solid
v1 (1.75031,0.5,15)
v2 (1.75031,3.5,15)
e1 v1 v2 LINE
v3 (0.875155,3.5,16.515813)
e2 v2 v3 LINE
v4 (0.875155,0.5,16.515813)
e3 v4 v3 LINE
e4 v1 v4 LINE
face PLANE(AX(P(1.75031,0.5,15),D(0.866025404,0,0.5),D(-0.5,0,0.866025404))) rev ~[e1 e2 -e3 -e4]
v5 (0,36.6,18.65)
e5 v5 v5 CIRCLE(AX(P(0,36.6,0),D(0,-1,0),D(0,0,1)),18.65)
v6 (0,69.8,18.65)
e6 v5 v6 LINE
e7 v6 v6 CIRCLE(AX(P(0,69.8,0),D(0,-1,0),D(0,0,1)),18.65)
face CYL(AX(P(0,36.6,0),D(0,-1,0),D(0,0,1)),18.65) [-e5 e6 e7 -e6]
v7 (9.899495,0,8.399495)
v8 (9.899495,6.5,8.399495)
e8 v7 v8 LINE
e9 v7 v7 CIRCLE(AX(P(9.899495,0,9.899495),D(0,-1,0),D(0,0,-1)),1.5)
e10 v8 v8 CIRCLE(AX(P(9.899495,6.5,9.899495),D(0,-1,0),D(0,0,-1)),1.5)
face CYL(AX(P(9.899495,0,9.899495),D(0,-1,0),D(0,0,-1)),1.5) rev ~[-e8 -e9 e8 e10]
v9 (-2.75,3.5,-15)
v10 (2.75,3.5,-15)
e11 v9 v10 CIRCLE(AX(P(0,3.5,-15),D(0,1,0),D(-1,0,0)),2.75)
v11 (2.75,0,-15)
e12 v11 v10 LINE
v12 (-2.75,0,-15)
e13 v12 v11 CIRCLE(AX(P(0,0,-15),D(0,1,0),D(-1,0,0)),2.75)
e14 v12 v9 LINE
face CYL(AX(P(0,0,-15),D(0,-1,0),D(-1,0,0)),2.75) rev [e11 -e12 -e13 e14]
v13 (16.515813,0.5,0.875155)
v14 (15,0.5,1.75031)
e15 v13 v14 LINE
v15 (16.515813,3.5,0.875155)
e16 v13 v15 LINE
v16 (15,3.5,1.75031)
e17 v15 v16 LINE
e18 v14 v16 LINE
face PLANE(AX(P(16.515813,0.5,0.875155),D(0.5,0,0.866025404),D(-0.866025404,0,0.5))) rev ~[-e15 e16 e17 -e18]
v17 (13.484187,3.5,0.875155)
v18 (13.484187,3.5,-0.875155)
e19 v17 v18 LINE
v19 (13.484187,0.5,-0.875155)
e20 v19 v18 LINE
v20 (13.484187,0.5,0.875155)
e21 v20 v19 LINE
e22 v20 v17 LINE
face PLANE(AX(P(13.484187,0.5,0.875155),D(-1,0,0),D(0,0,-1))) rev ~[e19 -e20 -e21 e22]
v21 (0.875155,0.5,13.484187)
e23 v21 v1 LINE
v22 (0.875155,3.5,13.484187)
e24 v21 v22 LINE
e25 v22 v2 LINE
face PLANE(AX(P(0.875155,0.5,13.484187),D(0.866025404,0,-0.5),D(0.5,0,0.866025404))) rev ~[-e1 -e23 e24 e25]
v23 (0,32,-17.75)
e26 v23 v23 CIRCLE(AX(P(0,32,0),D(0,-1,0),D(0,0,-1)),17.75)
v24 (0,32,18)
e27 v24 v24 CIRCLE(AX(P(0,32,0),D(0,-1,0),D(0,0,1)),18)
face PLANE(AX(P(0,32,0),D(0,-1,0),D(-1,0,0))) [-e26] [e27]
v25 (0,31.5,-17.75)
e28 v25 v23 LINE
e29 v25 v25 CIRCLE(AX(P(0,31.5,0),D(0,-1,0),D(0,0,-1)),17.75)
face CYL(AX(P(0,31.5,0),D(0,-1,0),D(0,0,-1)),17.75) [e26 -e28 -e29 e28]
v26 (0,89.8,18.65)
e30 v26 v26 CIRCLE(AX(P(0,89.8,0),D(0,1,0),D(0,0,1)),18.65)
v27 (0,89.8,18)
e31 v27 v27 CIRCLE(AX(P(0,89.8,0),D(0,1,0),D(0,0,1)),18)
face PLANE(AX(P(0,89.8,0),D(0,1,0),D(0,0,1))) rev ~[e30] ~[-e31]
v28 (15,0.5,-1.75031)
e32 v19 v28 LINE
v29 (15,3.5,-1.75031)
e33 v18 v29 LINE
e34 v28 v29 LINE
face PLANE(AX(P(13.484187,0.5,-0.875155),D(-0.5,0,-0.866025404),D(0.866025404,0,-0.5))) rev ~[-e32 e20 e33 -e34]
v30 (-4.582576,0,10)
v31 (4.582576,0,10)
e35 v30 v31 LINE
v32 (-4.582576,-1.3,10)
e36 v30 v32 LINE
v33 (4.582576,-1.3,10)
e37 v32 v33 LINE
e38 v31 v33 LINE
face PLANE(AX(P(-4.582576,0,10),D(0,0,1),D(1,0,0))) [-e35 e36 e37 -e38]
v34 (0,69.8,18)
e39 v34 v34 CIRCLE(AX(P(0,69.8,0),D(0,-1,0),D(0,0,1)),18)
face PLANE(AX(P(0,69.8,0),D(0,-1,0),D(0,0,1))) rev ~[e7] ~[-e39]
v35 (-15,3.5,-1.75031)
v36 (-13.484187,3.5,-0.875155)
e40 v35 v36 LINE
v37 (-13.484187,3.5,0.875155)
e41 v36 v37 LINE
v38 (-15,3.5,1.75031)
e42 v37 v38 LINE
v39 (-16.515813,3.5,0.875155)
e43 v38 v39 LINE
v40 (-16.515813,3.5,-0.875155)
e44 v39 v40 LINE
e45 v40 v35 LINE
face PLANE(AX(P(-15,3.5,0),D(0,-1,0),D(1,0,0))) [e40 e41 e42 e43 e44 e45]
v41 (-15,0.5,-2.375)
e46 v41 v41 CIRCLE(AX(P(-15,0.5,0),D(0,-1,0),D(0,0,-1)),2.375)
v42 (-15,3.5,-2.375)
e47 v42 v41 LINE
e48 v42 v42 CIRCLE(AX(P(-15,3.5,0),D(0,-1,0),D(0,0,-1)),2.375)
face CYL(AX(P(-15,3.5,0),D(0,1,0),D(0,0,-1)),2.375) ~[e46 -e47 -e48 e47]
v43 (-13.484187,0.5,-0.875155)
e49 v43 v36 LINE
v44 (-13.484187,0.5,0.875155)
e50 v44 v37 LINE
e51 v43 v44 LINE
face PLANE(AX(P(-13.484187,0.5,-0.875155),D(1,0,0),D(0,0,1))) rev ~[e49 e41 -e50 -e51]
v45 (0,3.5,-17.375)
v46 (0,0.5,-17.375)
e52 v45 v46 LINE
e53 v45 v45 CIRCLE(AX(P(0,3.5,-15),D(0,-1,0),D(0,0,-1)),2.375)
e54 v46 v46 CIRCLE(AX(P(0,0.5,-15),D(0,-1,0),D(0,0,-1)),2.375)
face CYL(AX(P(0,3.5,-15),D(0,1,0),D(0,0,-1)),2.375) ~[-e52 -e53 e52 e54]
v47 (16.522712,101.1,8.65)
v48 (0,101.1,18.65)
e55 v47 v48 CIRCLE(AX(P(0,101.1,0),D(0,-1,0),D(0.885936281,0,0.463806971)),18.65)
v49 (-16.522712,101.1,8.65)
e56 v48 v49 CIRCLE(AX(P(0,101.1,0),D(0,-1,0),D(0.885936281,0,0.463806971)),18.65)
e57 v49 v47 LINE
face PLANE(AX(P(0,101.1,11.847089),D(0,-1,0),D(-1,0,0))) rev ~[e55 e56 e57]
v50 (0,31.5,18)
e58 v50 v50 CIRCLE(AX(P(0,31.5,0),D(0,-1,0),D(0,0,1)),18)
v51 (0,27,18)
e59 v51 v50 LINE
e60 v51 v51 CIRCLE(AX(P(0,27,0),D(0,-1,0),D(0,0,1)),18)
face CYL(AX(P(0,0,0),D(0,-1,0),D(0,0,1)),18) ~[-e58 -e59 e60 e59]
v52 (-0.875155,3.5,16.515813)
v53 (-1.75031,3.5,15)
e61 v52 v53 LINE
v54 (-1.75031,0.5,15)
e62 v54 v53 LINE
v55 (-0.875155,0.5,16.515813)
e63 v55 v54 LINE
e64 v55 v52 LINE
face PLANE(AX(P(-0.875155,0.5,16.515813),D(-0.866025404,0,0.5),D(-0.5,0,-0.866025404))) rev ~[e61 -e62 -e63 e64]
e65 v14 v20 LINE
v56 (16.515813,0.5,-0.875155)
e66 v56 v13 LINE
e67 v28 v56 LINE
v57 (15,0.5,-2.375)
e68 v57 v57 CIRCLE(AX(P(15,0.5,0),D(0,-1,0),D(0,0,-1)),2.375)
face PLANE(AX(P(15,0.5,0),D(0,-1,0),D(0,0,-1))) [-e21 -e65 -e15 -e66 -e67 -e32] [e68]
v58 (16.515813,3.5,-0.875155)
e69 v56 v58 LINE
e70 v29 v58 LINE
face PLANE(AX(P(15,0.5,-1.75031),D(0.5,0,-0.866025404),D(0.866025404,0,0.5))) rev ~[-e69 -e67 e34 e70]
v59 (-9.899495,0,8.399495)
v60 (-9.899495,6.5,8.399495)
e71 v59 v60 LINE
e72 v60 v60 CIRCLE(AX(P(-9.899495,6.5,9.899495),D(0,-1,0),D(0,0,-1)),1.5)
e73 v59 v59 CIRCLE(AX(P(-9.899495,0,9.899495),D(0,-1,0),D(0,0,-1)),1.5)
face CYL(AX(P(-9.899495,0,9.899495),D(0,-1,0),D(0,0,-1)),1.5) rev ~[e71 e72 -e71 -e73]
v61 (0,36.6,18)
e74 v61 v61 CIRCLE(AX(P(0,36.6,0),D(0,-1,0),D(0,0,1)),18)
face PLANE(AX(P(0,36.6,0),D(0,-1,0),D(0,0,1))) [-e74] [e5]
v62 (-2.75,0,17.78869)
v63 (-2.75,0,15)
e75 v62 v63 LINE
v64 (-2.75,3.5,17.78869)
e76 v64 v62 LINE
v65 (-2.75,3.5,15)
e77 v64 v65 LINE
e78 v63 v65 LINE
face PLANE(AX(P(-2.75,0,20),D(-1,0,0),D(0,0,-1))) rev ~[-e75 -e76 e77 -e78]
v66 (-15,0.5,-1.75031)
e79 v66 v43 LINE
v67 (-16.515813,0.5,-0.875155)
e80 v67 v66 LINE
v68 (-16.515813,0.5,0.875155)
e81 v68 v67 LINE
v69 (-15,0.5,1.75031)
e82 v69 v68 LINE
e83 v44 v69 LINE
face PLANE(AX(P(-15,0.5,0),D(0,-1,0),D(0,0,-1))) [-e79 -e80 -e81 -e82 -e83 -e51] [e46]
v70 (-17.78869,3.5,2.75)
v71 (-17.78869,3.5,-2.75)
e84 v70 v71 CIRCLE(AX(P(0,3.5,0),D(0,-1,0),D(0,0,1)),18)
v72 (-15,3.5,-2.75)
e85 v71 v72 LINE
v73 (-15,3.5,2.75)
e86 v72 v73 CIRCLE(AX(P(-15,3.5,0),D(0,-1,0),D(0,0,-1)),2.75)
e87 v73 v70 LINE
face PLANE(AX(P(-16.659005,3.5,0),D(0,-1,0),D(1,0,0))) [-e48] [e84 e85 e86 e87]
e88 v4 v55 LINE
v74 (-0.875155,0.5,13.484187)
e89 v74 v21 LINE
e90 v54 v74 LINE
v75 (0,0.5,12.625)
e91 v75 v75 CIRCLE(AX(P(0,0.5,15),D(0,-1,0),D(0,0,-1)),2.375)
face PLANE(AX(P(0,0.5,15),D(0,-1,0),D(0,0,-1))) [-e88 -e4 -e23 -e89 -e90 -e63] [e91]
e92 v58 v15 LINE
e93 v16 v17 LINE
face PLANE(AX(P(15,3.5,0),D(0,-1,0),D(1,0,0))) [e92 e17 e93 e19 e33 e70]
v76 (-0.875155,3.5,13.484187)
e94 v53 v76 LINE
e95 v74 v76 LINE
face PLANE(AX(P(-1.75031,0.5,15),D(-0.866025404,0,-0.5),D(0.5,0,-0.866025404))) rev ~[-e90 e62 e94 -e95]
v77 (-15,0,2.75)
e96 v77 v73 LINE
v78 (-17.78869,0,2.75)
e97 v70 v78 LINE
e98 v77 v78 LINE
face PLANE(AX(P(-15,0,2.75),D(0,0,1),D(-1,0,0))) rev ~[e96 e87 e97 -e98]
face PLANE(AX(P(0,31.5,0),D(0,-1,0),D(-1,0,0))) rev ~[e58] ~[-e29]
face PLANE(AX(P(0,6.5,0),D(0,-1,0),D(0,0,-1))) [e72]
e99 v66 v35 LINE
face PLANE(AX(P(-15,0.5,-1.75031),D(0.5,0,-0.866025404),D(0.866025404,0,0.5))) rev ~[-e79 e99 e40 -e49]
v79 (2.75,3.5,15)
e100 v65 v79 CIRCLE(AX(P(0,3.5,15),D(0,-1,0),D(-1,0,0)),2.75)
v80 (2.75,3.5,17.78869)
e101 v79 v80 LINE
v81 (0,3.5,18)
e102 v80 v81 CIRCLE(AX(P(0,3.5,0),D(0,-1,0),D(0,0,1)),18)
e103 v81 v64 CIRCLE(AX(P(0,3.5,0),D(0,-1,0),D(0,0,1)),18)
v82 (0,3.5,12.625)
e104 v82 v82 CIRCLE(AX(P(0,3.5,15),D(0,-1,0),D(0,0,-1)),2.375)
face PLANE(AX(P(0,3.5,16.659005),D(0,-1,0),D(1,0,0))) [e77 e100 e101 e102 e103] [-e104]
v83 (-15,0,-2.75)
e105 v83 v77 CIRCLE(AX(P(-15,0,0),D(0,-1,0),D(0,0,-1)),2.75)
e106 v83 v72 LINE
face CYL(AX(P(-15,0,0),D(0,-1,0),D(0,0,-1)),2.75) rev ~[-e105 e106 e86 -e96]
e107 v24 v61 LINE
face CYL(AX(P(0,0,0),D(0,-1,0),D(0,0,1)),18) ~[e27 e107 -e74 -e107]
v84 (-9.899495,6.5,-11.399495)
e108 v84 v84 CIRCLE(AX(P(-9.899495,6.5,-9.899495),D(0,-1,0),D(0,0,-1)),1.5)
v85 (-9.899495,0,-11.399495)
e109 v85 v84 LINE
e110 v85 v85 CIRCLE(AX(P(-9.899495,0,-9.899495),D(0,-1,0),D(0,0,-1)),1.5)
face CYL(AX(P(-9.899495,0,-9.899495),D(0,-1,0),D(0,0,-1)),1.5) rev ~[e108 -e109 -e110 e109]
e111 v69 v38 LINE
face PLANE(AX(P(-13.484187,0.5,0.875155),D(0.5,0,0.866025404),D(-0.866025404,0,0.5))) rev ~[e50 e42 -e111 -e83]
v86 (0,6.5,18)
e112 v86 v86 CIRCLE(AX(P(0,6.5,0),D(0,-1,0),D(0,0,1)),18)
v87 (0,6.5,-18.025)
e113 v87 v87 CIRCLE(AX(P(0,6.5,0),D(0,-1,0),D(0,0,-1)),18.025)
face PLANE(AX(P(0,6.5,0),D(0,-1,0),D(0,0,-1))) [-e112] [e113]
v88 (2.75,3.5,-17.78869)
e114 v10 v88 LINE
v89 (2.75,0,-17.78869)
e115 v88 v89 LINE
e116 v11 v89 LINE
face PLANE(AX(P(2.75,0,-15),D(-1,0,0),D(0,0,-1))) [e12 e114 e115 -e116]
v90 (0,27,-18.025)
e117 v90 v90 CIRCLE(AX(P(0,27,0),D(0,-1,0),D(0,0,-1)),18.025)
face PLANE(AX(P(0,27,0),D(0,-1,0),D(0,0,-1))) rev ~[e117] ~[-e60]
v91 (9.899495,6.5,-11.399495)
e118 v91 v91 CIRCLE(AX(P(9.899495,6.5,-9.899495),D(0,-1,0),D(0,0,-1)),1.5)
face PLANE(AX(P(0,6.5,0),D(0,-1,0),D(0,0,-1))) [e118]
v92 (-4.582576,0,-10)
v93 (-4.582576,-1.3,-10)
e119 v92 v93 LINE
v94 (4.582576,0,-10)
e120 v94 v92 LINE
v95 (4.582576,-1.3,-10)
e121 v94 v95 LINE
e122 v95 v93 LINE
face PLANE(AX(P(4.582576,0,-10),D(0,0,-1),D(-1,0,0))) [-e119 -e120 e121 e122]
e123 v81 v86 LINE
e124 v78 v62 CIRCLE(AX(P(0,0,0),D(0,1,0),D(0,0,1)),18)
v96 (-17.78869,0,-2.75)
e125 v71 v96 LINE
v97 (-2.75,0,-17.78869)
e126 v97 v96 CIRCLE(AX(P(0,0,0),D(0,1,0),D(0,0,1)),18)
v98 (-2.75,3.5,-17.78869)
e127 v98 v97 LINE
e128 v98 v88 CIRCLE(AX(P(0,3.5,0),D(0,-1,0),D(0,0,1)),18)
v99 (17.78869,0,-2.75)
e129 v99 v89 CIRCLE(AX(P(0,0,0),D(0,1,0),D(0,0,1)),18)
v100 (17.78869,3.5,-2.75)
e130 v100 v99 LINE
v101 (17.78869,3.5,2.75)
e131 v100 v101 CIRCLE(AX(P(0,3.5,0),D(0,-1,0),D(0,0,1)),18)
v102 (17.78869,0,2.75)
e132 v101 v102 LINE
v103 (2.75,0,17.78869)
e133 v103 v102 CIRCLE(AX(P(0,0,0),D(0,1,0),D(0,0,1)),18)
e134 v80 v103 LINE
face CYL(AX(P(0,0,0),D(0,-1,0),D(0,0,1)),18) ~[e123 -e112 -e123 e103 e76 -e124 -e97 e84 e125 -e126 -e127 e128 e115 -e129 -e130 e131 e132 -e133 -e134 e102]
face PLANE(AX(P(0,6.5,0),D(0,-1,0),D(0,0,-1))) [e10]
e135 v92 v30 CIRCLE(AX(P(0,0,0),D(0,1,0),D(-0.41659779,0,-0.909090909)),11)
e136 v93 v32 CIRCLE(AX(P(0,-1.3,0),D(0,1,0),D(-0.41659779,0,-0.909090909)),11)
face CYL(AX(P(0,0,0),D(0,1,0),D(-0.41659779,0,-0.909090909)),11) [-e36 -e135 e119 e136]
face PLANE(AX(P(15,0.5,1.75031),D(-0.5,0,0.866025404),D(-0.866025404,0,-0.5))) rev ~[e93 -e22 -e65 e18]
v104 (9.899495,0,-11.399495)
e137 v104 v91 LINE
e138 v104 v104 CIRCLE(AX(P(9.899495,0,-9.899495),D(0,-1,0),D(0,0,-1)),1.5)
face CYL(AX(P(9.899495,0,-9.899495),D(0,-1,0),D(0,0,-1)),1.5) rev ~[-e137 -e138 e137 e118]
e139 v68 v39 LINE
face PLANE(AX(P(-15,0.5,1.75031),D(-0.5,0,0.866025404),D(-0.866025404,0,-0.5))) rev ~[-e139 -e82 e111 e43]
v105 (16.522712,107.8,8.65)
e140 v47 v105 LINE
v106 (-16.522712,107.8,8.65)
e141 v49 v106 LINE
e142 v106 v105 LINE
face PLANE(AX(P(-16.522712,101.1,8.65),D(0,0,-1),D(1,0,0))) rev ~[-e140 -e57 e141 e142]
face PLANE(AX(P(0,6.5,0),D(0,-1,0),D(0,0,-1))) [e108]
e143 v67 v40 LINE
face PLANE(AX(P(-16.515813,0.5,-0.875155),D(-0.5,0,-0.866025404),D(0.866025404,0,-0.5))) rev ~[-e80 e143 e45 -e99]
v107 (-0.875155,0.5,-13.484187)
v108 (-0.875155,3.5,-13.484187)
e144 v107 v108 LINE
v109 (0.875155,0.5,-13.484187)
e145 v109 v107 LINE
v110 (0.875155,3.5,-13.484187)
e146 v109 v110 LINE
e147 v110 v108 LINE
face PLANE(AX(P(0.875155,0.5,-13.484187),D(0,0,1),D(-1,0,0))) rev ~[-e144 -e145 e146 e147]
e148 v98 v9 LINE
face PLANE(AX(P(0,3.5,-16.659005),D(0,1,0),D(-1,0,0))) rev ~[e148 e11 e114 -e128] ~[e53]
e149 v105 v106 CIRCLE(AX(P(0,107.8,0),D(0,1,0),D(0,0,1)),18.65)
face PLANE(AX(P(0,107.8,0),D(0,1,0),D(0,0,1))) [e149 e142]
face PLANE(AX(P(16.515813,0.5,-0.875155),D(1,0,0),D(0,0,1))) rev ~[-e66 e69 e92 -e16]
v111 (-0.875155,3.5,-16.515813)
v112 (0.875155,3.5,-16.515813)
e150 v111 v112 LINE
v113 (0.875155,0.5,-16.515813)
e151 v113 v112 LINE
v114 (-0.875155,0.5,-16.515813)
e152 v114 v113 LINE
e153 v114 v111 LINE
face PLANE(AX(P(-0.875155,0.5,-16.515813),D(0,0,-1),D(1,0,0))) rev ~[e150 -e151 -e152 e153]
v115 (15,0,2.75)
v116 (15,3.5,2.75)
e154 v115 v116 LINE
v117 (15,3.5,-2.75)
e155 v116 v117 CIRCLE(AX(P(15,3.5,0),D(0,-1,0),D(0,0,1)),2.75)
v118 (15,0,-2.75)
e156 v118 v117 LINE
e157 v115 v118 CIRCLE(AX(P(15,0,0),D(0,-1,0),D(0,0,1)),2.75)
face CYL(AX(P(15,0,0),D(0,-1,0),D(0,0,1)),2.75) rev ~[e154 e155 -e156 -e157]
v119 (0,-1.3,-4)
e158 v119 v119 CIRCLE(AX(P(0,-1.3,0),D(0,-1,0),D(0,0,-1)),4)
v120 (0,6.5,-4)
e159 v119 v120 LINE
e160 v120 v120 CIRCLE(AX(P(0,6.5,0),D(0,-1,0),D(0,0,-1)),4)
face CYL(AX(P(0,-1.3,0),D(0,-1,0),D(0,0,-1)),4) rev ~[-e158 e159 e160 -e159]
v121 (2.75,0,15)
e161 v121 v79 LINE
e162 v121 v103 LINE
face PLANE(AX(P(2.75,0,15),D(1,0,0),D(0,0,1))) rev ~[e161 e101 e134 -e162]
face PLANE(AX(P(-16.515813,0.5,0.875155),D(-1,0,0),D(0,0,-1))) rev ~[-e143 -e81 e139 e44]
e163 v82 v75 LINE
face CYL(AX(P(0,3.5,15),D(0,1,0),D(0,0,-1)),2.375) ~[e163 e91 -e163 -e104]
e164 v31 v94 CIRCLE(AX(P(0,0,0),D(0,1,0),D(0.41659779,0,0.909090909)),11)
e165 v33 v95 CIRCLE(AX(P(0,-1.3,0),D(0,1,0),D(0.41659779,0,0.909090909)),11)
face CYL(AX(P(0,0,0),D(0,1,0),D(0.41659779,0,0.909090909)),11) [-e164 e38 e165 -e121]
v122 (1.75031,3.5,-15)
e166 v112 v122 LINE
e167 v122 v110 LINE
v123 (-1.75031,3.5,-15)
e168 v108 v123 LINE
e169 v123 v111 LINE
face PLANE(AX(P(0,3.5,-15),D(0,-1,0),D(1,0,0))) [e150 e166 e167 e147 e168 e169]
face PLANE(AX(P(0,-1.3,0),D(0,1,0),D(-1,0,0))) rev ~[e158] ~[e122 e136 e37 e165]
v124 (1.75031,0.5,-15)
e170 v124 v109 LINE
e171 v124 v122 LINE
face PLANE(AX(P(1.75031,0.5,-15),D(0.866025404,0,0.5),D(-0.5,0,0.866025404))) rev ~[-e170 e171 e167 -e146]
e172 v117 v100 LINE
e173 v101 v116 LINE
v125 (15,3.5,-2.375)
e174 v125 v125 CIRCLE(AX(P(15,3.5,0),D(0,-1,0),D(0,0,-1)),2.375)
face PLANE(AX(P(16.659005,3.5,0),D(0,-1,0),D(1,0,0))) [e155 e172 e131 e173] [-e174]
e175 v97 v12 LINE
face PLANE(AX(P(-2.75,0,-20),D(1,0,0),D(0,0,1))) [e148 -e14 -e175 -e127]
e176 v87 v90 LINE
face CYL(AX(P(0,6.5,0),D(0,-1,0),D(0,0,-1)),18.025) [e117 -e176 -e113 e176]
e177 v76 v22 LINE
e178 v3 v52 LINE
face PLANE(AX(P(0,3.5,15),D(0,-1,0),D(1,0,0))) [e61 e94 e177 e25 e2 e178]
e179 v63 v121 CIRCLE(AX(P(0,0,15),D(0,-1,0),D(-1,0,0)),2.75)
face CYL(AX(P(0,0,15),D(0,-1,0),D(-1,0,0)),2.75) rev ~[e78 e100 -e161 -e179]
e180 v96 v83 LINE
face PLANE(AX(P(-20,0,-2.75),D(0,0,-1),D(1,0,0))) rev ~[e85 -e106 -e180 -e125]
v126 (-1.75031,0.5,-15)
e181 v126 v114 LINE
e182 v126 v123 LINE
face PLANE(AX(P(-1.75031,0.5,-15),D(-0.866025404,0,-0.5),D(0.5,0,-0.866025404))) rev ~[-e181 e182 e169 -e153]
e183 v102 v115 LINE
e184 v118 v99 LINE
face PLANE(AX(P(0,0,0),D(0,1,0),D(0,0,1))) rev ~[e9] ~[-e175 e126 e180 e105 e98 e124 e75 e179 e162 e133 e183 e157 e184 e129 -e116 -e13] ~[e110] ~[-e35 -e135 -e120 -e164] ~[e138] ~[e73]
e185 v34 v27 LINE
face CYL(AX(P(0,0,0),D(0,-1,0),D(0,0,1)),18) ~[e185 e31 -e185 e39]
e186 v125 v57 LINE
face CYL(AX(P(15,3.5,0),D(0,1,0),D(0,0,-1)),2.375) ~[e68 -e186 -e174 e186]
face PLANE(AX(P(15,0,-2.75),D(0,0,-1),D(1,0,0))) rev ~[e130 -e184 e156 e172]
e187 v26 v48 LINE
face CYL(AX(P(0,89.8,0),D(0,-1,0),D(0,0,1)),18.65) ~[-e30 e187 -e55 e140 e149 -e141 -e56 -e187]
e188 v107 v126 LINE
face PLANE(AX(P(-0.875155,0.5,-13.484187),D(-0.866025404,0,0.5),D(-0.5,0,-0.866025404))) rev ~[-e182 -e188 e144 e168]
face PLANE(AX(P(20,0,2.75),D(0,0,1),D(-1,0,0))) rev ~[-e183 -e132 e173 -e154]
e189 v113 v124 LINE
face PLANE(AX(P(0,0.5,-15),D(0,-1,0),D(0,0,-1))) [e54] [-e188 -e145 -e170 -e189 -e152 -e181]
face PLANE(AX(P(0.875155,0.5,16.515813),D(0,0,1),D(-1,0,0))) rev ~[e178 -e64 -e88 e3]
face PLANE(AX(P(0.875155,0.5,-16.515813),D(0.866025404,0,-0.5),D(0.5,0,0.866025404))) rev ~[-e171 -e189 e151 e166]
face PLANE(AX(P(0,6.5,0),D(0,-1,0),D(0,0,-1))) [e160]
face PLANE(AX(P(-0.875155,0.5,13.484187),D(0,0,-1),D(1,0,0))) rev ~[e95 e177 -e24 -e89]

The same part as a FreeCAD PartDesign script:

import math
import FreeCAD as App
import Part
import Sketcher

V = App.Vector
Q = App.Units.Quantity

doc = App.newDocument("Part")
params = doc.addObject("Spreadsheet::Sheet", "Params")
for row, (alias, value) in enumerate([
    ("sketch1_diameter", "36 mm"),
    ("pad1_length", "89.8 mm"),
    ("sketch2_diameter", "37.3 mm"),
    ("pad2_length", "18 mm"),
    ("sketch3_radius", "11 mm"),
    ("pad3_length", "1.3 mm"),
    ("sketch4_diameter", "37.3 mm"),
    ("pad4_length", "33.2 mm"),
    ("sketch5_diameter", "8 mm"),
    ("pocket1_length", "10.3 mm"),
    ("sketch6_radius", "18.65 mm"),
    ("pocket2_length", "6.7 mm"),
    ("sketch7_diameter", "3 mm"),
    ("pocket3_length", "10 mm"),
    ("sketch8_diameter", "36.05 mm"),
    ("pad5_length", "20.5 mm"),
    ("sketch9_diameter", "35.5 mm"),
    ("pocket4_length", "0.5 mm"),
    ("sketch10_width", "5 mm"),
    ("sketch10_radius", "2.75 mm"),
    ("pocket5_length", "3.5 mm"),
    ("sketch11_diameter", "4.75 mm"),
    ("pad6_length", "3 mm"),
    ("pocket6_length", "3 mm"),
], start=1):
    params.set(f"A{row}", alias)
    params.set(f"B{row}", "=" + value)
    params.setAlias(f"B{row}", alias)

body = doc.addObject("PartDesign::Body", "Body")

# Sketch on XZ plane
sketch1 = body.newObject("Sketcher::SketchObject", "Sketch")
sketch1.AttachmentSupport = (doc.getObject("XZ_Plane"), [""])
sketch1.MapMode = "FlatFace"
sketch1.addGeometry(Part.Circle(V(0, 0, 0), V(0, 0, 1), 18), False)
sketch1.addConstraint(Sketcher.Constraint("Coincident", 0, 3, -1, 1))
sketch1.addConstraint(Sketcher.Constraint("Diameter", 0, 36.0))
sketch1.setExpression("Constraints[1]", "Params.sketch1_diameter")
pad1 = body.newObject("PartDesign::Pad", "Pad")
pad1.Profile = sketch1
pad1.setExpression("Length", "Params.pad1_length")
pad1.Reversed = True

# Sketch on XZ plane
sketch2 = body.newObject("Sketcher::SketchObject", "Sketch001")
sketch2.AttachmentSupport = (doc.getObject("XZ_Plane"), [""])
sketch2.MapMode = "FlatFace"
sketch2.AttachmentOffset = App.Placement(V(0, 0, -89.8), App.Rotation())
sketch2.addGeometry(Part.Circle(V(0, 0, 0), V(0, 0, 1), 19), False)
sketch2.addConstraint(Sketcher.Constraint("Coincident", 0, 3, -1, 1))
sketch2.addConstraint(Sketcher.Constraint("Diameter", 0, 37.3))
sketch2.setExpression("Constraints[1]", "Params.sketch2_diameter")
pad2 = body.newObject("PartDesign::Pad", "Pad001")
pad2.Profile = sketch2
pad2.setExpression("Length", "Params.pad2_length")
pad2.Reversed = True

# Sketch on XZ plane
sketch3 = body.newObject("Sketcher::SketchObject", "Sketch002")
sketch3.AttachmentSupport = (doc.getObject("XZ_Plane"), [""])
sketch3.MapMode = "FlatFace"
sketch3.addGeometry(Part.LineSegment(V(-5, -10, 0), V(5, -10, 0)), False)
sketch3.addGeometry(Part.ArcOfCircle(Part.Circle(V(0, 0, 0), V(0, 0, 1), 11), math.radians(-65), math.radians(65)), False)
sketch3.addGeometry(Part.LineSegment(V(5, 10, 0), V(-5, 10, 0)), False)
sketch3.addGeometry(Part.ArcOfCircle(Part.Circle(V(0, 0, 0), V(0, 0, 1), 11), math.radians(115), math.radians(245)), False)
sketch3.addConstraint(Sketcher.Constraint("Coincident", 0, 2, 1, 1))
sketch3.addConstraint(Sketcher.Constraint("Coincident", 1, 2, 2, 1))
sketch3.addConstraint(Sketcher.Constraint("Coincident", 2, 2, 3, 1))
sketch3.addConstraint(Sketcher.Constraint("Coincident", 3, 2, 0, 1))
sketch3.addConstraint(Sketcher.Constraint("Horizontal", 0))
sketch3.addConstraint(Sketcher.Constraint("Horizontal", 2))
sketch3.addConstraint(Sketcher.Constraint("Coincident", 1, 3, -1, 1))
sketch3.addConstraint(Sketcher.Constraint("Coincident", 3, 3, -1, 1))
sketch3.addConstraint(Sketcher.Constraint("Equal", 1, 3))
sketch3.addConstraint(Sketcher.Constraint("Vertical", 0, 2, 1, 2))
sketch3.addConstraint(Sketcher.Constraint("Radius", 1, 11.0))
sketch3.addConstraint(Sketcher.Constraint("DistanceY", 0, 2, -1, 1, 10.0))
sketch3.setExpression("Constraints[10]", "Params.sketch3_radius")
pad3 = body.newObject("PartDesign::Pad", "Pad002")
pad3.Profile = sketch3
pad3.setExpression("Length", "Params.pad3_length")

# Sketch on XZ plane
sketch4 = body.newObject("Sketcher::SketchObject", "Sketch003")
sketch4.AttachmentSupport = (doc.getObject("XZ_Plane"), [""])
sketch4.MapMode = "FlatFace"
sketch4.AttachmentOffset = App.Placement(V(0, 0, -36.6), App.Rotation())
sketch4.addGeometry(Part.Circle(V(0, 0, 0), V(0, 0, 1), 19), False)
sketch4.addConstraint(Sketcher.Constraint("Coincident", 0, 3, -1, 1))
sketch4.addConstraint(Sketcher.Constraint("Diameter", 0, 37.3))
sketch4.setExpression("Constraints[1]", "Params.sketch4_diameter")
pad4 = body.newObject("PartDesign::Pad", "Pad003")
pad4.Profile = sketch4
pad4.setExpression("Length", "Params.pad4_length")
pad4.Reversed = True

# Sketch on XZ plane
sketch5 = body.newObject("Sketcher::SketchObject", "Sketch004")
sketch5.AttachmentSupport = (doc.getObject("XZ_Plane"), [""])
sketch5.MapMode = "FlatFace"
sketch5.AttachmentOffset = App.Placement(V(0, 0, 1.3), App.Rotation())
sketch5.addGeometry(Part.Circle(V(0, 0, 0), V(0, 0, 1), 4), False)
sketch5.addConstraint(Sketcher.Constraint("Coincident", 0, 3, -1, 1))
sketch5.addConstraint(Sketcher.Constraint("Diameter", 0, 8.0))
sketch5.setExpression("Constraints[1]", "Params.sketch5_diameter")
pocket1 = body.newObject("PartDesign::Pocket", "Pocket")
pocket1.Profile = sketch5
pocket1.setExpression("Length", "Params.pocket1_length")

# Sketch on XZ plane
sketch6 = body.newObject("Sketcher::SketchObject", "Sketch005")
sketch6.AttachmentSupport = (doc.getObject("XZ_Plane"), [""])
sketch6.MapMode = "FlatFace"
sketch6.AttachmentOffset = App.Placement(V(0, 0, -101.1), App.Rotation())
sketch6.addGeometry(Part.LineSegment(V(17, 9, 0), V(-17, 9, 0)), False)
sketch6.addGeometry(Part.ArcOfCircle(Part.Circle(V(0, 0, 0), V(0, 0, 1), 19), math.radians(28), math.radians(152)), False)
sketch6.addConstraint(Sketcher.Constraint("Coincident", 0, 1, 1, 1))
sketch6.addConstraint(Sketcher.Constraint("Coincident", 1, 2, 0, 2))
sketch6.addConstraint(Sketcher.Constraint("Horizontal", 0))
sketch6.addConstraint(Sketcher.Constraint("Coincident", 1, 3, -1, 1))
sketch6.addConstraint(Sketcher.Constraint("Radius", 1, 18.65))
sketch6.addConstraint(Sketcher.Constraint("DistanceY", -1, 1, 0, 1, 8.65))
sketch6.setExpression("Constraints[4]", "Params.sketch6_radius")
pocket2 = body.newObject("PartDesign::Pocket", "Pocket001")
pocket2.Profile = sketch6
pocket2.setExpression("Length", "Params.pocket2_length")

# Sketch on XZ plane
sketch7 = body.newObject("Sketcher::SketchObject", "Sketch006")
sketch7.AttachmentSupport = (doc.getObject("XZ_Plane"), [""])
sketch7.MapMode = "FlatFace"
sketch7.addGeometry(Part.Circle(V(-9.9, 9.9, 0), V(0, 0, 1), 1.5), False)
sketch7.addGeometry(Part.Circle(V(9.9, 9.9, 0), V(0, 0, 1), 1.5), False)
sketch7.addGeometry(Part.Circle(V(9.9, -9.9, 0), V(0, 0, 1), 1.5), False)
sketch7.addGeometry(Part.Circle(V(-9.9, -9.9, 0), V(0, 0, 1), 1.5), False)
sketch7.addConstraint(Sketcher.Constraint("Equal", 0, 1))
sketch7.addConstraint(Sketcher.Constraint("Equal", 1, 2))
sketch7.addConstraint(Sketcher.Constraint("Equal", 2, 3))
sketch7.addConstraint(Sketcher.Constraint("Symmetric", 0, 3, 2, 3, -1, 1))
sketch7.addConstraint(Sketcher.Constraint("Symmetric", 1, 3, 3, 3, -1, 1))
sketch7.addConstraint(Sketcher.Constraint("Symmetric", 0, 3, 1, 3, -2))
sketch7.addConstraint(Sketcher.Constraint("Diameter", 0, 3.0))
sketch7.addConstraint(Sketcher.Constraint("DistanceX", 0, 3, 1, 3, 19.79899))
sketch7.addConstraint(Sketcher.Constraint("DistanceY", 2, 3, 1, 3, 19.79899))
sketch7.setExpression("Constraints[6]", "Params.sketch7_diameter")
pocket3 = body.newObject("PartDesign::Pocket", "Pocket002")
pocket3.Profile = sketch7
pocket3.setExpression("Length", "Params.pocket3_length")

# Sketch on XZ plane
sketch8 = body.newObject("Sketcher::SketchObject", "Sketch007")
sketch8.AttachmentSupport = (doc.getObject("XZ_Plane"), [""])
sketch8.MapMode = "FlatFace"
sketch8.AttachmentOffset = App.Placement(V(0, 0, -6.5), App.Rotation())
sketch8.addGeometry(Part.Circle(V(0, 0, 0), V(0, 0, 1), 18), False)
sketch8.addConstraint(Sketcher.Constraint("Coincident", 0, 3, -1, 1))
sketch8.addConstraint(Sketcher.Constraint("Diameter", 0, 36.05))
sketch8.setExpression("Constraints[1]", "Params.sketch8_diameter")
pad5 = body.newObject("PartDesign::Pad", "Pad004")
pad5.Profile = sketch8
pad5.setExpression("Length", "Params.pad5_length")
pad5.Reversed = True

# Sketch on XZ plane
sketch9 = body.newObject("Sketcher::SketchObject", "Sketch008")
sketch9.AttachmentSupport = (doc.getObject("XZ_Plane"), [""])
sketch9.MapMode = "FlatFace"
sketch9.AttachmentOffset = App.Placement(V(0, 0, -31.5), App.Rotation())
sketch9.addGeometry(Part.Circle(V(0, 0, 0), V(0, 0, 1), 20), False)
sketch9.addGeometry(Part.Circle(V(0, 0, 0), V(0, 0, 1), 18), False)
sketch9.addConstraint(Sketcher.Constraint("Coincident", 0, 3, -1, 1))
sketch9.addConstraint(Sketcher.Constraint("Coincident", 1, 3, -1, 1))
sketch9.addConstraint(Sketcher.Constraint("Diameter", 1, 35.5))
sketch9.addConstraint(Sketcher.Constraint("Diameter", 0, 39.291357))
sketch9.setExpression("Constraints[2]", "Params.sketch9_diameter")
pocket4 = body.newObject("PartDesign::Pocket", "Pocket003")
pocket4.Profile = sketch9
pocket4.setExpression("Length", "Params.pocket4_length")

# Sketch on XZ plane
sketch10 = body.newObject("Sketcher::SketchObject", "Sketch009")
sketch10.AttachmentSupport = (doc.getObject("XZ_Plane"), [""])
sketch10.MapMode = "FlatFace"
sketch10.addGeometry(Part.LineSegment(V(2.8, -20, 0), V(2.8, -15, 0)), False)
sketch10.addGeometry(Part.ArcOfCircle(Part.Circle(V(0, -15, 0), V(0, 0, 1), 2.8), math.radians(0), math.radians(180)), False)
sketch10.addGeometry(Part.LineSegment(V(-2.8, -15, 0), V(-2.8, -20, 0)), False)
sketch10.addGeometry(Part.LineSegment(V(-2.8, -20, 0), V(2.8, -20, 0)), False)
sketch10.addGeometry(Part.LineSegment(V(2.8, 15, 0), V(2.8, 20, 0)), False)
sketch10.addGeometry(Part.LineSegment(V(2.8, 20, 0), V(-2.8, 20, 0)), False)
sketch10.addGeometry(Part.LineSegment(V(-2.8, 20, 0), V(-2.8, 15, 0)), False)
sketch10.addGeometry(Part.ArcOfCircle(Part.Circle(V(0, 15, 0), V(0, 0, 1), 2.8), math.radians(180), math.radians(360)), False)
sketch10.addGeometry(Part.LineSegment(V(-15, 2.8, 0), V(-20, 2.8, 0)), False)
sketch10.addGeometry(Part.LineSegment(V(-20, 2.8, 0), V(-20, -2.8, 0)), False)
sketch10.addGeometry(Part.LineSegment(V(-20, -2.8, 0), V(-15, -2.8, 0)), False)
sketch10.addGeometry(Part.ArcOfCircle(Part.Circle(V(-15, 0, 0), V(0, 0, 1), 2.8), math.radians(-90), math.radians(90)), False)
sketch10.addGeometry(Part.LineSegment(V(15, -2.8, 0), V(20, -2.8, 0)), False)
sketch10.addGeometry(Part.LineSegment(V(20, -2.8, 0), V(20, 2.8, 0)), False)
sketch10.addGeometry(Part.LineSegment(V(20, 2.8, 0), V(15, 2.8, 0)), False)
sketch10.addGeometry(Part.ArcOfCircle(Part.Circle(V(15, 0, 0), V(0, 0, 1), 2.8), math.radians(90), math.radians(270)), False)
sketch10.addConstraint(Sketcher.Constraint("Tangent", 0, 2, 1, 1))
sketch10.addConstraint(Sketcher.Constraint("Tangent", 1, 2, 2, 1))
sketch10.addConstraint(Sketcher.Constraint("Coincident", 2, 2, 3, 1))
sketch10.addConstraint(Sketcher.Constraint("Coincident", 3, 2, 0, 1))
sketch10.addConstraint(Sketcher.Constraint("Coincident", 4, 2, 5, 1))
sketch10.addConstraint(Sketcher.Constraint("Coincident", 5, 2, 6, 1))
sketch10.addConstraint(Sketcher.Constraint("Tangent", 6, 2, 7, 1))
sketch10.addConstraint(Sketcher.Constraint("Tangent", 7, 2, 4, 1))
sketch10.addConstraint(Sketcher.Constraint("Coincident", 8, 2, 9, 1))
sketch10.addConstraint(Sketcher.Constraint("Coincident", 9, 2, 10, 1))
sketch10.addConstraint(Sketcher.Constraint("Tangent", 10, 2, 11, 1))
sketch10.addConstraint(Sketcher.Constraint("Tangent", 11, 2, 8, 1))
sketch10.addConstraint(Sketcher.Constraint("Coincident", 12, 2, 13, 1))
sketch10.addConstraint(Sketcher.Constraint("Coincident", 13, 2, 14, 1))
sketch10.addConstraint(Sketcher.Constraint("Tangent", 14, 2, 15, 1))
sketch10.addConstraint(Sketcher.Constraint("Tangent", 15, 2, 12, 1))
sketch10.addConstraint(Sketcher.Constraint("Vertical", 0))
sketch10.addConstraint(Sketcher.Constraint("Vertical", 2))
sketch10.addConstraint(Sketcher.Constraint("Horizontal", 3))
sketch10.addConstraint(Sketcher.Constraint("Vertical", 4))
sketch10.addConstraint(Sketcher.Constraint("Horizontal", 5))
sketch10.addConstraint(Sketcher.Constraint("Vertical", 6))
sketch10.addConstraint(Sketcher.Constraint("Horizontal", 8))
sketch10.addConstraint(Sketcher.Constraint("Vertical", 9))
sketch10.addConstraint(Sketcher.Constraint("Horizontal", 10))
sketch10.addConstraint(Sketcher.Constraint("Horizontal", 12))
sketch10.addConstraint(Sketcher.Constraint("Vertical", 13))
sketch10.addConstraint(Sketcher.Constraint("Horizontal", 14))
sketch10.addConstraint(Sketcher.Constraint("Equal", 1, 7))
sketch10.addConstraint(Sketcher.Constraint("Equal", 7, 11))
sketch10.addConstraint(Sketcher.Constraint("Equal", 11, 15))
sketch10.addConstraint(Sketcher.Constraint("Symmetric", 1, 3, 7, 3, -1, 1))
sketch10.addConstraint(Sketcher.Constraint("Symmetric", 11, 3, 15, 3, -1, 1))
sketch10.addConstraint(Sketcher.Constraint("Symmetric", 9, 2, 12, 2, -2))
sketch10.addConstraint(Sketcher.Constraint("Symmetric", 3, 2, 4, 2, -1))
sketch10.addConstraint(Sketcher.Constraint("Equal", 14, 0))
sketch10.addConstraint(Sketcher.Constraint("DistanceX", 8, 2, 8, 1, 5.0))
sketch10.addConstraint(Sketcher.Constraint("Radius", 1, 2.75))
sketch10.addConstraint(Sketcher.Constraint("DistanceY", 1, 3, -1, 1, 15.0))
sketch10.addConstraint(Sketcher.Constraint("DistanceX", 11, 3, -1, 1, 15.0))
sketch10.setExpression("Constraints[36]", "Params.sketch10_width")
sketch10.setExpression("Constraints[37]", "Params.sketch10_radius")
pocket5 = body.newObject("PartDesign::Pocket", "Pocket004")
pocket5.Profile = sketch10
pocket5.setExpression("Length", "Params.pocket5_length")

# Sketch on XZ plane
sketch11 = body.newObject("Sketcher::SketchObject", "Sketch010")
sketch11.AttachmentSupport = (doc.getObject("XZ_Plane"), [""])
sketch11.MapMode = "FlatFace"
sketch11.AttachmentOffset = App.Placement(V(0, 0, -3.5), App.Rotation())
sketch11.addGeometry(Part.Circle(V(-15, 0, 0), V(0, 0, 1), 2.4), False)
sketch11.addGeometry(Part.Circle(V(0, 15, 0), V(0, 0, 1), 2.4), False)
sketch11.addGeometry(Part.Circle(V(15, 0, 0), V(0, 0, 1), 2.4), False)
sketch11.addGeometry(Part.Circle(V(0, -15, 0), V(0, 0, 1), 2.4), False)
sketch11.addConstraint(Sketcher.Constraint("Equal", 0, 1))
sketch11.addConstraint(Sketcher.Constraint("Equal", 1, 2))
sketch11.addConstraint(Sketcher.Constraint("Equal", 2, 3))
sketch11.addConstraint(Sketcher.Constraint("Symmetric", 0, 3, 2, 3, -1, 1))
sketch11.addConstraint(Sketcher.Constraint("Symmetric", 1, 3, 3, 3, -1, 1))
sketch11.addConstraint(Sketcher.Constraint("PointOnObject", 0, 3, -1))
sketch11.addConstraint(Sketcher.Constraint("PointOnObject", 1, 3, -2))
sketch11.addConstraint(Sketcher.Constraint("Diameter", 0, 4.75))
sketch11.addConstraint(Sketcher.Constraint("DistanceX", 0, 3, -1, 1, 15.0))
sketch11.addConstraint(Sketcher.Constraint("DistanceY", -1, 1, 1, 3, 15.0))
sketch11.setExpression("Constraints[7]", "Params.sketch11_diameter")
pad6 = body.newObject("PartDesign::Pad", "Pad005")
pad6.Profile = sketch11
pad6.setExpression("Length", "Params.pad6_length")

# Sketch on XZ plane
sketch12 = body.newObject("Sketcher::SketchObject", "Sketch011")
sketch12.AttachmentSupport = (doc.getObject("XZ_Plane"), [""])
sketch12.MapMode = "FlatFace"
sketch12.AttachmentOffset = App.Placement(V(0, 0, -0.5), App.Rotation())
sketch12.addGeometry(Part.LineSegment(V(16.5, 0.9, 0), V(15, 1.8, 0)), False)
sketch12.addGeometry(Part.LineSegment(V(15, 1.8, 0), V(13.5, 0.9, 0)), False)
sketch12.addGeometry(Part.LineSegment(V(13.5, 0.9, 0), V(13.5, -0.9, 0)), False)
sketch12.addGeometry(Part.LineSegment(V(13.5, -0.9, 0), V(15, -1.8, 0)), False)
sketch12.addGeometry(Part.LineSegment(V(15, -1.8, 0), V(16.5, -0.9, 0)), False)
sketch12.addGeometry(Part.LineSegment(V(16.5, -0.9, 0), V(16.5, 0.9, 0)), False)
sketch12.addGeometry(Part.LineSegment(V(-1.8, 15, 0), V(-0.9, 13.5, 0)), False)
sketch12.addGeometry(Part.LineSegment(V(-0.9, 13.5, 0), V(0.9, 13.5, 0)), False)
sketch12.addGeometry(Part.LineSegment(V(0.9, 13.5, 0), V(1.8, 15, 0)), False)
sketch12.addGeometry(Part.LineSegment(V(1.8, 15, 0), V(0.9, 16.5, 0)), False)
sketch12.addGeometry(Part.LineSegment(V(0.9, 16.5, 0), V(-0.9, 16.5, 0)), False)
sketch12.addGeometry(Part.LineSegment(V(-0.9, 16.5, 0), V(-1.8, 15, 0)), False)
sketch12.addGeometry(Part.LineSegment(V(0.9, -16.5, 0), V(1.8, -15, 0)), False)
sketch12.addGeometry(Part.LineSegment(V(1.8, -15, 0), V(0.9, -13.5, 0)), False)
sketch12.addGeometry(Part.LineSegment(V(0.9, -13.5, 0), V(-0.9, -13.5, 0)), False)
sketch12.addGeometry(Part.LineSegment(V(-0.9, -13.5, 0), V(-1.8, -15, 0)), False)
sketch12.addGeometry(Part.LineSegment(V(-1.8, -15, 0), V(-0.9, -16.5, 0)), False)
sketch12.addGeometry(Part.LineSegment(V(-0.9, -16.5, 0), V(0.9, -16.5, 0)), False)
sketch12.addGeometry(Part.LineSegment(V(-16.5, -0.9, 0), V(-15, -1.8, 0)), False)
sketch12.addGeometry(Part.LineSegment(V(-15, -1.8, 0), V(-13.5, -0.9, 0)), False)
sketch12.addGeometry(Part.LineSegment(V(-13.5, -0.9, 0), V(-13.5, 0.9, 0)), False)
sketch12.addGeometry(Part.LineSegment(V(-13.5, 0.9, 0), V(-15, 1.8, 0)), False)
sketch12.addGeometry(Part.LineSegment(V(-15, 1.8, 0), V(-16.5, 0.9, 0)), False)
sketch12.addGeometry(Part.LineSegment(V(-16.5, 0.9, 0), V(-16.5, -0.9, 0)), False)
sketch12.addConstraint(Sketcher.Constraint("Coincident", 0, 2, 1, 1))
sketch12.addConstraint(Sketcher.Constraint("Coincident", 1, 2, 2, 1))
sketch12.addConstraint(Sketcher.Constraint("Coincident", 2, 2, 3, 1))
sketch12.addConstraint(Sketcher.Constraint("Coincident", 3, 2, 4, 1))
sketch12.addConstraint(Sketcher.Constraint("Coincident", 4, 2, 5, 1))
sketch12.addConstraint(Sketcher.Constraint("Coincident", 5, 2, 0, 1))
sketch12.addConstraint(Sketcher.Constraint("Coincident", 6, 2, 7, 1))
sketch12.addConstraint(Sketcher.Constraint("Coincident", 7, 2, 8, 1))
sketch12.addConstraint(Sketcher.Constraint("Coincident", 8, 2, 9, 1))
sketch12.addConstraint(Sketcher.Constraint("Coincident", 9, 2, 10, 1))
sketch12.addConstraint(Sketcher.Constraint("Coincident", 10, 2, 11, 1))
sketch12.addConstraint(Sketcher.Constraint("Coincident", 11, 2, 6, 1))
sketch12.addConstraint(Sketcher.Constraint("Coincident", 12, 2, 13, 1))
sketch12.addConstraint(Sketcher.Constraint("Coincident", 13, 2, 14, 1))
sketch12.addConstraint(Sketcher.Constraint("Coincident", 14, 2, 15, 1))
sketch12.addConstraint(Sketcher.Constraint("Coincident", 15, 2, 16, 1))
sketch12.addConstraint(Sketcher.Constraint("Coincident", 16, 2, 17, 1))
sketch12.addConstraint(Sketcher.Constraint("Coincident", 17, 2, 12, 1))
sketch12.addConstraint(Sketcher.Constraint("Coincident", 18, 2, 19, 1))
sketch12.addConstraint(Sketcher.Constraint("Coincident", 19, 2, 20, 1))
sketch12.addConstraint(Sketcher.Constraint("Coincident", 20, 2, 21, 1))
sketch12.addConstraint(Sketcher.Constraint("Coincident", 21, 2, 22, 1))
sketch12.addConstraint(Sketcher.Constraint("Coincident", 22, 2, 23, 1))
sketch12.addConstraint(Sketcher.Constraint("Coincident", 23, 2, 18, 1))
sketch12.addConstraint(Sketcher.Constraint("Vertical", 2))
sketch12.addConstraint(Sketcher.Constraint("Vertical", 5))
sketch12.addConstraint(Sketcher.Constraint("Horizontal", 7))
sketch12.addConstraint(Sketcher.Constraint("Horizontal", 10))
sketch12.addConstraint(Sketcher.Constraint("Horizontal", 14))
sketch12.addConstraint(Sketcher.Constraint("Horizontal", 17))
sketch12.addConstraint(Sketcher.Constraint("Vertical", 20))
sketch12.addConstraint(Sketcher.Constraint("Vertical", 23))
sketch12.addConstraint(Sketcher.Constraint("Symmetric", 11, 2, 12, 2, -1, 1))
sketch12.addConstraint(Sketcher.Constraint("Symmetric", 6, 2, 13, 2, -1, 1))
sketch12.addConstraint(Sketcher.Constraint("Symmetric", 8, 2, 15, 2, -1, 1))
sketch12.addConstraint(Sketcher.Constraint("Symmetric", 9, 2, 16, 2, -1, 1))
sketch12.addConstraint(Sketcher.Constraint("Symmetric", 0, 2, 18, 2, -1, 1))
sketch12.addConstraint(Sketcher.Constraint("Symmetric", 1, 2, 19, 2, -1, 1))
sketch12.addConstraint(Sketcher.Constraint("Symmetric", 3, 2, 21, 2, -1, 1))
sketch12.addConstraint(Sketcher.Constraint("Symmetric", 4, 2, 22, 2, -1, 1))
sketch12.addConstraint(Sketcher.Constraint("Symmetric", 8, 2, 11, 2, -2))
sketch12.addConstraint(Sketcher.Constraint("Symmetric", 3, 2, 18, 2, -2))
sketch12.addConstraint(Sketcher.Constraint("Parallel", 0, 3))
sketch12.addConstraint(Sketcher.Constraint("Parallel", 1, 4))
sketch12.addConstraint(Sketcher.Constraint("Perpendicular", 4, 6))
sketch12.addConstraint(Sketcher.Constraint("Perpendicular", 3, 8))
sketch12.addConstraint(Sketcher.Constraint("Parallel", 6, 9))
sketch12.addConstraint(Sketcher.Constraint("Parallel", 8, 11))
sketch12.addConstraint(Sketcher.Constraint("Parallel", 11, 12))
sketch12.addConstraint(Sketcher.Constraint("Parallel", 12, 15))
sketch12.addConstraint(Sketcher.Constraint("Perpendicular", 15, 18))
sketch12.addConstraint(Sketcher.Constraint("Parallel", 18, 21))
sketch12.addConstraint(Sketcher.Constraint("Horizontal", 2, 2, 4, 2))
sketch12.addConstraint(Sketcher.Constraint("Horizontal", 1, 2, 5, 2))
sketch12.addConstraint(Sketcher.Constraint("Vertical", 7, 2, 9, 2))
sketch12.addConstraint(Sketcher.Constraint("Equal", 17, 2))
sketch12.addConstraint(Sketcher.Constraint("Equal", 4, 6))
sketch12.addConstraint(Sketcher.Constraint("Angle", 0, Q("150 deg")))
sketch12.addConstraint(Sketcher.Constraint("DistanceX", -1, 1, 0, 2, 15.0))
sketch12.addConstraint(Sketcher.Constraint("DistanceY", -1, 1, 8, 2, 15.0))
sketch12.addConstraint(Sketcher.Constraint("DistanceX", 7, 1, 7, 2, 1.75031))
sketch12.addConstraint(Sketcher.Constraint("Distance", 0, 1.75031))
pocket6 = body.newObject("PartDesign::Pocket", "Pocket005")
pocket6.Profile = sketch12
pocket6.setExpression("Length", "Params.pocket6_length")

doc.recompute()
